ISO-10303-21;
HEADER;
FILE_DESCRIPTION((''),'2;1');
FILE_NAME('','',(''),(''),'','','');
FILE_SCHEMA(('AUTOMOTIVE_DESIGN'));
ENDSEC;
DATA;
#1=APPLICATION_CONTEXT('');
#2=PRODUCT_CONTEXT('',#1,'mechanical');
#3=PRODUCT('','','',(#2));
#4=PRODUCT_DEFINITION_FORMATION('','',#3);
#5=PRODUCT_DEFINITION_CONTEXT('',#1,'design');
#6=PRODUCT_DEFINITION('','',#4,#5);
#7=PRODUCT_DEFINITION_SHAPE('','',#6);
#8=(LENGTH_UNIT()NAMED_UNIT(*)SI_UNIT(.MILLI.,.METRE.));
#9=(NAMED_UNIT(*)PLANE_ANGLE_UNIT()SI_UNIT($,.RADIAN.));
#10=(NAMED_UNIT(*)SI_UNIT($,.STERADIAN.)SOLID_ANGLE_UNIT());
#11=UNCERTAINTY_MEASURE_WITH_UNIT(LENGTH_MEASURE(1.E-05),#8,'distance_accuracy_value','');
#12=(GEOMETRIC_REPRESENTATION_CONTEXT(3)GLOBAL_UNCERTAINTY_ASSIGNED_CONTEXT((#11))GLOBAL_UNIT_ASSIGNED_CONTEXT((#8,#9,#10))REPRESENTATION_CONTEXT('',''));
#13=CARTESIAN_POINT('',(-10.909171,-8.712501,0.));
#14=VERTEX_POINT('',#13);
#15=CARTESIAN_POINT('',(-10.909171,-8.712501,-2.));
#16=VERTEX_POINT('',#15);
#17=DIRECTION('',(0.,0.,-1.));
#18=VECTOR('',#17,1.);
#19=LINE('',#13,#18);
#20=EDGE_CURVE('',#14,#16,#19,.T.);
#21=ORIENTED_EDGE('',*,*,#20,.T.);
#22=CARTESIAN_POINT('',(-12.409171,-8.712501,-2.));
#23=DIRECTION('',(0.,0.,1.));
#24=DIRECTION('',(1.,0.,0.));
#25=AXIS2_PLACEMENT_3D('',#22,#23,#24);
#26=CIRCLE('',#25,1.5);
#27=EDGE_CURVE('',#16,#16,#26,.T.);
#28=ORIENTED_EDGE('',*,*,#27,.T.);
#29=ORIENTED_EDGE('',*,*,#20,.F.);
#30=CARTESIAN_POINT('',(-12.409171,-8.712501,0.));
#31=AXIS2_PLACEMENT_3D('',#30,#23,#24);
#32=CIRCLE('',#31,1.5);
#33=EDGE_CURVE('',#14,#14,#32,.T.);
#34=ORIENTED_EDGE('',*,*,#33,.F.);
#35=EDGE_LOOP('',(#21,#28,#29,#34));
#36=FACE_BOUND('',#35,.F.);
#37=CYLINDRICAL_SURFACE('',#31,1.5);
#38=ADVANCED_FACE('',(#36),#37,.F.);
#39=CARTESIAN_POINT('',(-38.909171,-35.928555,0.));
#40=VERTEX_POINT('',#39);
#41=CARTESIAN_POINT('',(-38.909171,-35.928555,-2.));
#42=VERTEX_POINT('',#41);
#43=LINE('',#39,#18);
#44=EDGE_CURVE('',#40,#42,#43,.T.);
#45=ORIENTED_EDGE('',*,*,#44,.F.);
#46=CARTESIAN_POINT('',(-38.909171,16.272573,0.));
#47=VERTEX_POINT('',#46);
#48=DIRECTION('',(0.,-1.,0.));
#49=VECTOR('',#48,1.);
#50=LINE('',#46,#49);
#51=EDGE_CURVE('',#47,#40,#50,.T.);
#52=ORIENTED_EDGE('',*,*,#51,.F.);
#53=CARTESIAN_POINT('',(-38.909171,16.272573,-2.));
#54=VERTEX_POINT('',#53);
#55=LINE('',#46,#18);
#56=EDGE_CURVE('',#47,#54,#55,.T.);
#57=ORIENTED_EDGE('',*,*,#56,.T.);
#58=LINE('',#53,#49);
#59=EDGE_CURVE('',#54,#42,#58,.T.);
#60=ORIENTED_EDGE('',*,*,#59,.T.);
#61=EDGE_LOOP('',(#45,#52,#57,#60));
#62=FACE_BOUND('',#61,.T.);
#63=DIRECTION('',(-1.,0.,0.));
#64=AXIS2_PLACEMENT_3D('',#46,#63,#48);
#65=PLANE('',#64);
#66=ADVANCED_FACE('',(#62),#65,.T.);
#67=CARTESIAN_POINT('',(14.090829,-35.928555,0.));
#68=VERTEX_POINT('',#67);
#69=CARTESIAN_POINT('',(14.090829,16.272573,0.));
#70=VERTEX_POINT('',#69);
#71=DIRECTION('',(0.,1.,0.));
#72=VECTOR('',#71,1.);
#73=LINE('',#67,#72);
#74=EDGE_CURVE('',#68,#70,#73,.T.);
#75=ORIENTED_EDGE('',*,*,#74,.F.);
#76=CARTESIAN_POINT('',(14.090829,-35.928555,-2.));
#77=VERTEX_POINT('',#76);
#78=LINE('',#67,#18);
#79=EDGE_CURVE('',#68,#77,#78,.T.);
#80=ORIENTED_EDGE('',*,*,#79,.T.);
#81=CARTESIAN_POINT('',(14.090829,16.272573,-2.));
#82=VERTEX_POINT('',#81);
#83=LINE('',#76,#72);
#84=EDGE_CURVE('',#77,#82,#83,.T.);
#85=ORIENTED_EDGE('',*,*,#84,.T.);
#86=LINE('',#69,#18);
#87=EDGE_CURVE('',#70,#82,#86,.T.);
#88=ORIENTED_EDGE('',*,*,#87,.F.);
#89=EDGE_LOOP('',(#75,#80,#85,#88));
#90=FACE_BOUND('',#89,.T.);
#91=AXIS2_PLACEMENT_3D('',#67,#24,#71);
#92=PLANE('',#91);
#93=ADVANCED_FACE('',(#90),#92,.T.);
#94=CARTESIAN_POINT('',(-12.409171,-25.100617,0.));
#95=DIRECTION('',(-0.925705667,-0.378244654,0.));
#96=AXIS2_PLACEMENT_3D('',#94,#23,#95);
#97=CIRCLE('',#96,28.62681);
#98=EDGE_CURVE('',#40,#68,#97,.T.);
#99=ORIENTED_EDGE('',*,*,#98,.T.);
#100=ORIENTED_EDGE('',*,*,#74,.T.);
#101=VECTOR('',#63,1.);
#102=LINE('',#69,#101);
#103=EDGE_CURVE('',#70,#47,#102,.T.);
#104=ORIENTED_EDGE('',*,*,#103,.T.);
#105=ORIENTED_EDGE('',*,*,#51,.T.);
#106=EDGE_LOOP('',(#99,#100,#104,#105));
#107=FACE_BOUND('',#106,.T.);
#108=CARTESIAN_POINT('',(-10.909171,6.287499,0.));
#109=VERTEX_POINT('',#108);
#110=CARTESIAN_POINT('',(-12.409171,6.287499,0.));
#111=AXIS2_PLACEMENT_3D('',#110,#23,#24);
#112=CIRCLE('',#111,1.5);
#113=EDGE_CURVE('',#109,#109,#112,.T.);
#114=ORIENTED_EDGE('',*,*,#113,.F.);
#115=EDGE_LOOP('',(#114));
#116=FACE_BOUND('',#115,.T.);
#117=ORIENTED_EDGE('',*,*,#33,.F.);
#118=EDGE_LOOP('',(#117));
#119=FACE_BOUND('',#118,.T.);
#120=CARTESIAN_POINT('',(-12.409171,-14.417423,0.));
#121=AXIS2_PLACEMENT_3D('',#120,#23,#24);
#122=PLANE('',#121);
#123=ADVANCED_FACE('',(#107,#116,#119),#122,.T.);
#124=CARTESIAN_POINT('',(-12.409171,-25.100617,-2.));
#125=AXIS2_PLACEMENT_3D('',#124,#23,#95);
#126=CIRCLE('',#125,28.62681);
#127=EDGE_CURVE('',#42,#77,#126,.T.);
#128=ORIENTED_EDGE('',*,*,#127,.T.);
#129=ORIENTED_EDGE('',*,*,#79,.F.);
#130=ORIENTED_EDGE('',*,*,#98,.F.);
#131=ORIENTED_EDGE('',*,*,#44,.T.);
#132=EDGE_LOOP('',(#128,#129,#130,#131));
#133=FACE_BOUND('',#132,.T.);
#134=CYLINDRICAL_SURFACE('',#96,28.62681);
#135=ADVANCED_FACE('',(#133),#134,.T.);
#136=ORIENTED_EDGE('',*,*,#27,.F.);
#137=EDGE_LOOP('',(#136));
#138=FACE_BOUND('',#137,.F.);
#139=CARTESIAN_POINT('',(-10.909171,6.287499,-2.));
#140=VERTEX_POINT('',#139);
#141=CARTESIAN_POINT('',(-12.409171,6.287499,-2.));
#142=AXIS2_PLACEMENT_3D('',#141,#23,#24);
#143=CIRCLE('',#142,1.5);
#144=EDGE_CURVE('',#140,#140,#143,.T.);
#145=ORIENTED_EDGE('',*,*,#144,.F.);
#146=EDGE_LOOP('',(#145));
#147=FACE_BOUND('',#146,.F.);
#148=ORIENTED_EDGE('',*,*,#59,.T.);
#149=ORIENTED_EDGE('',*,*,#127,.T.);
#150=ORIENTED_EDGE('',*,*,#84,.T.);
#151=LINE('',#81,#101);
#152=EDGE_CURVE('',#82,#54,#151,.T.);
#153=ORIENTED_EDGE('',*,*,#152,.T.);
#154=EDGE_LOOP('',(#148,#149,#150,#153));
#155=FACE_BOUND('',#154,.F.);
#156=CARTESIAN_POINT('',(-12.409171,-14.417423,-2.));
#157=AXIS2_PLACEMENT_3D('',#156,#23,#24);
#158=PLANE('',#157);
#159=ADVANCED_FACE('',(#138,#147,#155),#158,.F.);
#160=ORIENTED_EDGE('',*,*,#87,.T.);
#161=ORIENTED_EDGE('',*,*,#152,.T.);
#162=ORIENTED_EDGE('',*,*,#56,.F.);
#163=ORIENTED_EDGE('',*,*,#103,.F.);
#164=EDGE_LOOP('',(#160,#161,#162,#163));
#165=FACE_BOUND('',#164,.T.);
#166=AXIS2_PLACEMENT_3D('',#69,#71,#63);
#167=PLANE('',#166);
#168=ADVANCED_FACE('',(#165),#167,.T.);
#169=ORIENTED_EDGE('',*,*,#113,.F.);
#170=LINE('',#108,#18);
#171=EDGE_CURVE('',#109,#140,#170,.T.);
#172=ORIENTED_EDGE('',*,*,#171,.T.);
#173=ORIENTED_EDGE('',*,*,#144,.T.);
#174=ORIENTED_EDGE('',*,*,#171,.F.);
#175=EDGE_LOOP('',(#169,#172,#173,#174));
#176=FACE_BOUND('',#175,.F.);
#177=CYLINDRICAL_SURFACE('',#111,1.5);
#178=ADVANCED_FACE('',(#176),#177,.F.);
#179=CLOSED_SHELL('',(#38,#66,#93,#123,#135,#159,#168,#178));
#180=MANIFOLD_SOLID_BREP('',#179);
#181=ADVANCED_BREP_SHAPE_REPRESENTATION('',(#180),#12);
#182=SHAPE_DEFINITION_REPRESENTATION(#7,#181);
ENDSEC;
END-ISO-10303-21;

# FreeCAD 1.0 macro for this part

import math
import FreeCAD as App
import Part
import Sketcher
Q = App.Units.Quantity

doc = App.newDocument("Part")
body = doc.addObject("PartDesign::Body", "Body")

# Sketch on XY plane
sketch1 = body.newObject("Sketcher::SketchObject", "Sketch")
sketch1.AttachmentSupport = (doc.getObject("XY_Plane"), [""])
sketch1.MapMode = "FlatFace"
sketch1.addGeometry([
    Part.LineSegment(App.Vector(14.1, 16.3, 0), App.Vector(-38.9, 16.3, 0)),  # 0
    Part.LineSegment(App.Vector(-38.9, 16.3, 0), App.Vector(-38.9, -35.9, 0)),  # 1
    Part.ArcOfCircle(Part.Circle(App.Vector(-12.4, -25.1, 0), App.Vector(0, 0, 1), 28.6), math.radians(-158), math.radians(-22)),  # 2
    Part.LineSegment(App.Vector(14.1, -35.9, 0), App.Vector(14.1, 16.3, 0)),  # 3
    Part.Circle(App.Vector(-12.4, -8.7, 0), App.Vector(0, 0, 1), 1.5),  # 4
    Part.Circle(App.Vector(-12.4, 6.3, 0), App.Vector(0, 0, 1), 1.5),  # 5
], False)
sketch1.addConstraint([
    Sketcher.Constraint("Coincident", 0, 2, 1, 1),
    Sketcher.Constraint("Coincident", 1, 2, 2, 1),
    Sketcher.Constraint("Coincident", 2, 2, 3, 1),
    Sketcher.Constraint("Coincident", 3, 2, 0, 1),
    Sketcher.Constraint("Horizontal", 0),
    Sketcher.Constraint("Vertical", 1),
    Sketcher.Constraint("Vertical", 3),
    Sketcher.Constraint("Equal", 4, 5),
    Sketcher.Constraint("Horizontal", 1, 2, 2, 2),
    Sketcher.Constraint("Vertical", 2, 3, 4, 3),
    Sketcher.Constraint("Vertical", 4, 3, 5, 3),
    Sketcher.Constraint("Diameter", 4, Q("3 mm")),
    Sketcher.Constraint("DistanceX", 0, 2, 0, 1, Q("53 mm")),
    Sketcher.Constraint("DistanceY", 4, 3, 5, 3, Q("15 mm")),
    Sketcher.Constraint("Radius", 2, Q("28.62681 mm")),
    Sketcher.Constraint("DistanceY", 1, 2, 1, 1, Q("52.201128 mm")),
    Sketcher.Constraint("DistanceY", 4, 3, -1, 1, Q("8.712501 mm")),
    Sketcher.Constraint("DistanceX", 2, 3, -1, 1, Q("12.409171 mm")),
    Sketcher.Constraint("DistanceY", 2, 3, -1, 1, Q("25.100617 mm")),
])
pad1 = body.newObject("PartDesign::Pad", "Pad")
pad1.Profile = sketch1
pad1.Length = 2
pad1.Reversed = True

doc.recompute()
